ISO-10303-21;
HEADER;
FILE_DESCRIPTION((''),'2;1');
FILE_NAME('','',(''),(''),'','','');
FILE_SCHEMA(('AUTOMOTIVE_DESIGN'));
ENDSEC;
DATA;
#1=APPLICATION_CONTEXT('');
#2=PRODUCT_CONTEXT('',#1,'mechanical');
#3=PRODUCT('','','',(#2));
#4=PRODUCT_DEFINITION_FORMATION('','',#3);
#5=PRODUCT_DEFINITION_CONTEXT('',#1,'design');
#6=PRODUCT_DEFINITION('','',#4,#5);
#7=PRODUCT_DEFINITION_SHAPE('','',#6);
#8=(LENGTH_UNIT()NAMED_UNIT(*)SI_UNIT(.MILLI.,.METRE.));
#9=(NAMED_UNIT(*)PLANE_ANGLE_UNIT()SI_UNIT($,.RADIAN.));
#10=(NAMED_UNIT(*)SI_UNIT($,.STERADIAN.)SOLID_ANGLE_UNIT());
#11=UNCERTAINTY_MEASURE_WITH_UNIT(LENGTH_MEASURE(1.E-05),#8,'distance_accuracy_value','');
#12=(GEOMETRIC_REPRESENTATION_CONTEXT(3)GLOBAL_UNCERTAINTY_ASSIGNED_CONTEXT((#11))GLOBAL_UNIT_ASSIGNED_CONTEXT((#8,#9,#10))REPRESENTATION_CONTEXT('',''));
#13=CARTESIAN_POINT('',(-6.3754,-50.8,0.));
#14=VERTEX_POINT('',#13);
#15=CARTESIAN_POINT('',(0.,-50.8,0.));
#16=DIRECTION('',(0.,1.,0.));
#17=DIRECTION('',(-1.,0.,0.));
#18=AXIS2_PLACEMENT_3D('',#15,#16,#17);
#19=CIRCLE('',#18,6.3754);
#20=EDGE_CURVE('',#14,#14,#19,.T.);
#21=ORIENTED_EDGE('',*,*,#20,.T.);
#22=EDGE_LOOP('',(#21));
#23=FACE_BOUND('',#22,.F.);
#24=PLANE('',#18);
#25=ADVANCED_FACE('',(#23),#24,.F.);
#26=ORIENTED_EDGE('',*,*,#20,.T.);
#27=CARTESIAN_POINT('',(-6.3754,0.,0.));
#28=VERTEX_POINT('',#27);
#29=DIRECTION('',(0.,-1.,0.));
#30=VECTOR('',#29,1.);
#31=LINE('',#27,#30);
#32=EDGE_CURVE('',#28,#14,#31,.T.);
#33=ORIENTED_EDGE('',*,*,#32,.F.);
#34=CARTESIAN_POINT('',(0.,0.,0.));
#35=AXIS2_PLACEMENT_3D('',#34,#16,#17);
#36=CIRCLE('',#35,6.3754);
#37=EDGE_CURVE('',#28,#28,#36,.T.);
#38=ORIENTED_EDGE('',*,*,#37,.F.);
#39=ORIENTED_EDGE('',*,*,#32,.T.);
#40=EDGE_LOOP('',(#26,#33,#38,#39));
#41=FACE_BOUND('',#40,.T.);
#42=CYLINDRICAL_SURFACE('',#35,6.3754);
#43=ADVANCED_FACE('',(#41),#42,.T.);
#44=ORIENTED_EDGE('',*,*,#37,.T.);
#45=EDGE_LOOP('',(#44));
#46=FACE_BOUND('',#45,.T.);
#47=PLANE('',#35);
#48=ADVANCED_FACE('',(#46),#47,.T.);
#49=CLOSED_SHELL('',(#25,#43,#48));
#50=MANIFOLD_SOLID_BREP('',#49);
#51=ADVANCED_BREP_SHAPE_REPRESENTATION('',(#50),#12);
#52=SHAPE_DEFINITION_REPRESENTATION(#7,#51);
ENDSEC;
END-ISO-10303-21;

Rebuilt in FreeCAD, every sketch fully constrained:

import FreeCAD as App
import Part
import Sketcher
from FreeCAD import Vector
Q = App.Units.Quantity

doc = App.newDocument("Part")
body = doc.addObject("PartDesign::Body", "Body")

# Sketch on XZ plane
sketch1 = body.newObject("Sketcher::SketchObject", "Sketch")
sketch1.AttachmentSupport = (doc.getObject("XZ_Plane"), [""])
sketch1.MapMode = "FlatFace"
sketch1.addGeometry(Part.Circle(Vector(0, 0, 0), Vector(0, 0, 1), 6.3754), False)
sketch1.addConstraint([
    Sketcher.Constraint("Coincident", 0, 3, -1, 1),
    Sketcher.Constraint("Diameter", 0, Q("0.502 in")),
])
pad1 = body.newObject("PartDesign::Pad", "Pad")
pad1.Profile = sketch1
pad1.Length = Q("2 in")

doc.recompute()
